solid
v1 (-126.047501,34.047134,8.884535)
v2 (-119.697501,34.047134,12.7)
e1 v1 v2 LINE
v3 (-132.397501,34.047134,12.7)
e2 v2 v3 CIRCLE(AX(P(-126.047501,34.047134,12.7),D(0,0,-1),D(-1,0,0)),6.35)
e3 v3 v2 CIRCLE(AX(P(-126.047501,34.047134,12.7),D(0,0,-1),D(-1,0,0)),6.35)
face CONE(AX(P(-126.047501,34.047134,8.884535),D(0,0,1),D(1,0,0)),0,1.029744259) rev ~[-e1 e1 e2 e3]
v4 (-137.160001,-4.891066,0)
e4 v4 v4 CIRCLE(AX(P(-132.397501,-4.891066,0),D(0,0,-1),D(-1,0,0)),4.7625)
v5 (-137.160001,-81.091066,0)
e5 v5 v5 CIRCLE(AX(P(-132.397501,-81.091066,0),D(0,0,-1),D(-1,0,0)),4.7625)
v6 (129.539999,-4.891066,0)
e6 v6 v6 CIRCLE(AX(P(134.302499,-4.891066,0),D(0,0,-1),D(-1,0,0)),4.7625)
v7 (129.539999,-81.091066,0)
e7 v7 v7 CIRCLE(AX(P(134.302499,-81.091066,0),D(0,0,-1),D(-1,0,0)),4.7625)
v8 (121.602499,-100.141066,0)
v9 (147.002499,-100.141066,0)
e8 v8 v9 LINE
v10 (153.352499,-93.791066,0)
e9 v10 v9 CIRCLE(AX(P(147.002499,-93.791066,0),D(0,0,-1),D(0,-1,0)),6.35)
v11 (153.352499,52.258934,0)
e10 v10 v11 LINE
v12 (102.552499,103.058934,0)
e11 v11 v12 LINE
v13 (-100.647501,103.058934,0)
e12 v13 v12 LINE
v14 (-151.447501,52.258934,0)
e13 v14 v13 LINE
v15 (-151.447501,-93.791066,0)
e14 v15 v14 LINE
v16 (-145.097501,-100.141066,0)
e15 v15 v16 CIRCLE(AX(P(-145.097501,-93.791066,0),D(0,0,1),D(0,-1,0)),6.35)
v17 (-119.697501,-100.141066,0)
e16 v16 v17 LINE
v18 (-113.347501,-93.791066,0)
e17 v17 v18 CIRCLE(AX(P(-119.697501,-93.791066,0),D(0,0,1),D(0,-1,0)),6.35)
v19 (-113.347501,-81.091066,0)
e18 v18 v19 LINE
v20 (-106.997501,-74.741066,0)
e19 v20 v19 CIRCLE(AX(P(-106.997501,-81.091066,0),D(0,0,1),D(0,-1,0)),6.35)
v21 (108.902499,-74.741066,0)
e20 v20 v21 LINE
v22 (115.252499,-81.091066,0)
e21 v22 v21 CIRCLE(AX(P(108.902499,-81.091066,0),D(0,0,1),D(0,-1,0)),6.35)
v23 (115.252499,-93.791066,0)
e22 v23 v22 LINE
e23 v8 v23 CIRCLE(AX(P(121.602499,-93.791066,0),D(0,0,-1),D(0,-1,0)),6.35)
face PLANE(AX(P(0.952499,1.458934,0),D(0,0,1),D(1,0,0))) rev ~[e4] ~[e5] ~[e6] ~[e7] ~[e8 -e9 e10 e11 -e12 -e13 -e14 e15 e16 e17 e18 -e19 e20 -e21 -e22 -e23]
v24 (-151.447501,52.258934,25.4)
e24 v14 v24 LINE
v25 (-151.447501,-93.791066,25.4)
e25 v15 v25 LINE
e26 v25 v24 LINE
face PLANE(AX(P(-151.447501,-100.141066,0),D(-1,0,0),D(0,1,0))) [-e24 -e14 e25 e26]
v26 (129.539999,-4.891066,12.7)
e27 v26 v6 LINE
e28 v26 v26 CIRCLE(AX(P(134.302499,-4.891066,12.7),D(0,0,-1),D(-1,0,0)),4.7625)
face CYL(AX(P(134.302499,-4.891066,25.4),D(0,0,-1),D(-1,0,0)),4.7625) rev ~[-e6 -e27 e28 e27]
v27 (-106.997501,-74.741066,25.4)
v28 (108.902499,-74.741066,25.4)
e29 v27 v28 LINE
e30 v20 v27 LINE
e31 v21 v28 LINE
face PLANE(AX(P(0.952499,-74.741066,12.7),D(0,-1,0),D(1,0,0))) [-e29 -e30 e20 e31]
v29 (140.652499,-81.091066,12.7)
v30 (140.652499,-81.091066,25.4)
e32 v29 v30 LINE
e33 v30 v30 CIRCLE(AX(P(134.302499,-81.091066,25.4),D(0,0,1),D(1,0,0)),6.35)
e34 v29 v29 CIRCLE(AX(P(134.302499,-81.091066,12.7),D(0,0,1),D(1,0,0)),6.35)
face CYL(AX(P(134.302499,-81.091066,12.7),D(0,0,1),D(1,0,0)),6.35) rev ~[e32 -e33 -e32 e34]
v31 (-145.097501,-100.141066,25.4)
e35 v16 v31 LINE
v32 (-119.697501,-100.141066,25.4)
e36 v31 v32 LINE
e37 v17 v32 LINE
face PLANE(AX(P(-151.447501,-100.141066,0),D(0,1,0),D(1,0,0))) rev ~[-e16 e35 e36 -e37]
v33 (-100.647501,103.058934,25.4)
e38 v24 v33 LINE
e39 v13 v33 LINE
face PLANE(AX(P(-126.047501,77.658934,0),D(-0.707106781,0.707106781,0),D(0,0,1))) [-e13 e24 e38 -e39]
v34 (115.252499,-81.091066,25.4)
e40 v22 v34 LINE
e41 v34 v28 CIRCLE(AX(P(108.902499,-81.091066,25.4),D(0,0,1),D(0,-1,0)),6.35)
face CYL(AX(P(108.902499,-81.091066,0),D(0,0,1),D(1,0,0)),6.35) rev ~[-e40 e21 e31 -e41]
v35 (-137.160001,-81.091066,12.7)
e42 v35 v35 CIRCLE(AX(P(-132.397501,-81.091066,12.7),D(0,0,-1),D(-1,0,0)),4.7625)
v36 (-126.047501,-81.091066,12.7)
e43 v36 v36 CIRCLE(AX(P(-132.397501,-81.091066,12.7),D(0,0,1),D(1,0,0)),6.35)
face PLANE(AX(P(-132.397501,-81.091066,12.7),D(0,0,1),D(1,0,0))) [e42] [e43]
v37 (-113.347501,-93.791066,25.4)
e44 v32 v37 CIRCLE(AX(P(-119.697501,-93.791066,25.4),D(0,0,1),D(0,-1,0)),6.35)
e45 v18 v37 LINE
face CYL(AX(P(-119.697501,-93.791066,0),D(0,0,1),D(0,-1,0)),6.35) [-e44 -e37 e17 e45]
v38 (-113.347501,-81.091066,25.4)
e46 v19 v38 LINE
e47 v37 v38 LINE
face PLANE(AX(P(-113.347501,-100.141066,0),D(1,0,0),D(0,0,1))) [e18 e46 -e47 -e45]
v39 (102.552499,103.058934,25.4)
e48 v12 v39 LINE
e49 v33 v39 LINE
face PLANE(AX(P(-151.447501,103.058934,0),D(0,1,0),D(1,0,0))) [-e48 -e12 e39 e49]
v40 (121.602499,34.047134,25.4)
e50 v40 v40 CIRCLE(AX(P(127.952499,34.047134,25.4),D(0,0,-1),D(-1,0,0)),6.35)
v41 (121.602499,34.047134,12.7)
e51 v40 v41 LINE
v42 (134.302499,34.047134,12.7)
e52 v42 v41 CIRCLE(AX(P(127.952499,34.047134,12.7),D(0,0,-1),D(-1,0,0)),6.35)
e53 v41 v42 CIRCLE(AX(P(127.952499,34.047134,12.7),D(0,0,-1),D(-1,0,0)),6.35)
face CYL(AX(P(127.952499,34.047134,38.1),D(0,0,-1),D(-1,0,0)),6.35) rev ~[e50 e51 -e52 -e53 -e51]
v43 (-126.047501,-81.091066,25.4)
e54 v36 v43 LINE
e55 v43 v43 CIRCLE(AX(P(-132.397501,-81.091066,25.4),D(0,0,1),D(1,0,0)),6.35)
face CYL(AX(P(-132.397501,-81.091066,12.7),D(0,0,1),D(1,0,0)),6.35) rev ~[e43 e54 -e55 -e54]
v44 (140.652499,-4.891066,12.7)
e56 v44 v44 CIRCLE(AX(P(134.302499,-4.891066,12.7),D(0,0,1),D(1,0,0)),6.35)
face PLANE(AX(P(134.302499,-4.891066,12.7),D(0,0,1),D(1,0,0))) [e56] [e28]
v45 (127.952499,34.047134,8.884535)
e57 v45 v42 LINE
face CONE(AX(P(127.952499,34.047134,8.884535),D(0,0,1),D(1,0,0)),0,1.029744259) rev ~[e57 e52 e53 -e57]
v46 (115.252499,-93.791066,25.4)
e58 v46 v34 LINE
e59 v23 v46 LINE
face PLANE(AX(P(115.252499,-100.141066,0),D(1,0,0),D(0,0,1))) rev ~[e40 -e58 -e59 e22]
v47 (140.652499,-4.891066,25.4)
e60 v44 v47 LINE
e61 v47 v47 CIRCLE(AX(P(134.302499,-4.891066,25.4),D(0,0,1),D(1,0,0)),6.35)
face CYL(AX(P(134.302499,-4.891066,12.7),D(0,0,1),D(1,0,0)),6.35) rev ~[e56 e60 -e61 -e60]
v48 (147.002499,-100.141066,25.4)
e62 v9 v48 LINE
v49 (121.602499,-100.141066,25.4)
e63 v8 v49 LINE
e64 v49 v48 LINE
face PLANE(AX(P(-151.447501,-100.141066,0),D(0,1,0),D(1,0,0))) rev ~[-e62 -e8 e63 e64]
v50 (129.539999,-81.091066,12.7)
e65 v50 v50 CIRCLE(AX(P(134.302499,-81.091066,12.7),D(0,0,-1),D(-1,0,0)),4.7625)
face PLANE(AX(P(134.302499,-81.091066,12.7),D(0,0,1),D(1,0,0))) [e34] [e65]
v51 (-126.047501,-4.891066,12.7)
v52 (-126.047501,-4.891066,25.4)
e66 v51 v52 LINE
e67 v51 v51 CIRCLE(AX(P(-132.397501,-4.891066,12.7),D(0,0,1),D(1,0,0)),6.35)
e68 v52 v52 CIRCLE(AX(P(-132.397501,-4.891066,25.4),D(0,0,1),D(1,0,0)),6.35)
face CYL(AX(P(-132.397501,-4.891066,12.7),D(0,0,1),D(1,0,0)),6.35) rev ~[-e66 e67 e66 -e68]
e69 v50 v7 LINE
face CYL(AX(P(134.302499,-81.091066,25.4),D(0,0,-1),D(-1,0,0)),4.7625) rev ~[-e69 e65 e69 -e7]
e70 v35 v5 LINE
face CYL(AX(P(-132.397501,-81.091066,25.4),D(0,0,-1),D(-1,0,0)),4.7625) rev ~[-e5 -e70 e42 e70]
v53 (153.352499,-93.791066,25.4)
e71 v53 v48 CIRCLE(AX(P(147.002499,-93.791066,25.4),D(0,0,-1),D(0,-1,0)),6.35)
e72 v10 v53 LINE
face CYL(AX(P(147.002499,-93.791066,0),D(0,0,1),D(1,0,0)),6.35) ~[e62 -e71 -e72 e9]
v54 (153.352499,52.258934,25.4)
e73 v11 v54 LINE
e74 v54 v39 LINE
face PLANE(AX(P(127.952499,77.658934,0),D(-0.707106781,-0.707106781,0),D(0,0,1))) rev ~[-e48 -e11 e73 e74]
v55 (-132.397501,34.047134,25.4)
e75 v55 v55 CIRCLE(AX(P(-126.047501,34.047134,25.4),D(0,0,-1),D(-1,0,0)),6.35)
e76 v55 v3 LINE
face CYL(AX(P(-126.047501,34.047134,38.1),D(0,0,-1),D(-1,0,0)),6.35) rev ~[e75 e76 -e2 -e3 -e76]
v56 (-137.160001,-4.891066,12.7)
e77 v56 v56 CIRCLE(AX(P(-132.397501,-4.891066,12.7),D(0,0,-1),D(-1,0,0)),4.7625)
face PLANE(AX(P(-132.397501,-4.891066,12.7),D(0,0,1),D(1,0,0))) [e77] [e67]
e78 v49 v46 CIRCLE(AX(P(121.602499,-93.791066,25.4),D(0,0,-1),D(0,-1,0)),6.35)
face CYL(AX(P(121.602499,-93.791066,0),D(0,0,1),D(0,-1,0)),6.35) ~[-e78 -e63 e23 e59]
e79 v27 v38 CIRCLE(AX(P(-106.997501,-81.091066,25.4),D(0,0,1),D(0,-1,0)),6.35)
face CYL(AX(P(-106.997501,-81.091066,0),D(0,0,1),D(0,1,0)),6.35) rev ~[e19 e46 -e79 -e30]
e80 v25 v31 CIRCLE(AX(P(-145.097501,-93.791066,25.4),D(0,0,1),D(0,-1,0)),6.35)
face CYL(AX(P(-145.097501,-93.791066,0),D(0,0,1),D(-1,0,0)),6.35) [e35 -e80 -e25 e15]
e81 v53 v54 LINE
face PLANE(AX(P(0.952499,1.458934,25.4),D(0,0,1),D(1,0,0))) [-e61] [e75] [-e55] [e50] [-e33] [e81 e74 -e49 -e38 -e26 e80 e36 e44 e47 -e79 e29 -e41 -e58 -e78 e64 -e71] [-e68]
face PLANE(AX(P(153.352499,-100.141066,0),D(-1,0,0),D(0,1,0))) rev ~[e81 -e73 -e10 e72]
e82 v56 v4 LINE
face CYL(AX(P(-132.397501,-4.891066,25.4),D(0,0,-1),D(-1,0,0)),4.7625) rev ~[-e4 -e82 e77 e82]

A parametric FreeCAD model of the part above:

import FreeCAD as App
import Part
import Sketcher
from FreeCAD import Vector
Q = App.Units.Quantity


def edges_at(feature, points):
    """Names of the edges that pass closest to the given points."""
    edges = feature.Shape.Edges
    near = lambda p: min(range(len(edges)), key=lambda i: edges[i].distToShape(Part.Vertex(*p))[0])
    return sorted({f"Edge{near(p) + 1}" for p in points})

doc = App.newDocument("Part")
body = doc.addObject("PartDesign::Body", "Body")

# Sketch on XY plane
sketch1 = body.newObject("Sketcher::SketchObject", "Sketch")
sketch1.AttachmentSupport = (doc.getObject("XY_Plane"), [""])
sketch1.MapMode = "FlatFace"
sketch1.addGeometry([
    Part.LineSegment(Vector(-151, 103, 0), Vector(-151, -100, 0)),
    Part.LineSegment(Vector(-151, -100, 0), Vector(153, -100, 0)),
    Part.LineSegment(Vector(153, -100, 0), Vector(153, 103, 0)),
    Part.LineSegment(Vector(153, 103, 0), Vector(-151, 103, 0)),
], False)
sketch1.addConstraint([
    Sketcher.Constraint("Coincident", 0, 2, 1, 1),
    Sketcher.Constraint("Coincident", 1, 2, 2, 1),
    Sketcher.Constraint("Coincident", 2, 2, 3, 1),
    Sketcher.Constraint("Coincident", 3, 2, 0, 1),
    Sketcher.Constraint("Vertical", 0),
    Sketcher.Constraint("Horizontal", 1),
    Sketcher.Constraint("Vertical", 2),
    Sketcher.Constraint("Horizontal", 3),
    Sketcher.Constraint("DistanceX", 1, 1, 1, 2, Q("12 in")),
    Sketcher.Constraint("DistanceY", 0, 2, 0, 1, Q("8 in")),
    Sketcher.Constraint("DistanceX", 0, 2, -1, 1, Q("5.9625 in")),
    Sketcher.Constraint("DistanceY", 0, 2, -1, 1, Q("100.141066 mm")),
])
pad1 = body.newObject("PartDesign::Pad", "Pad")
pad1.Profile = sketch1
pad1.Length = Q("1 in")
doc.recompute()

chamfer = body.newObject("PartDesign::Chamfer", "Chamfer")
chamfer.Base = (pad1, edges_at(pad1, [(-151.448, 103.059, 12.7), (153.352, 103.059, 12.7)]))
chamfer.Size = Q("2 in")

# Sketch on XZ plane
sketch2 = body.newObject("Sketcher::SketchObject", "Sketch001")
sketch2.AttachmentSupport = (doc.getObject("XZ_Plane"), [""])
sketch2.MapMode = "FlatFace"
sketch2.AttachmentOffset = App.Placement(Vector(0, 0, 100.141066), App.Rotation())
sketch2.addGeometry([
    Part.LineSegment(Vector(-113, 25, 0), Vector(-113, 0, 0)),
    Part.LineSegment(Vector(-113, 0, 0), Vector(115, 0, 0)),
    Part.LineSegment(Vector(115, 0, 0), Vector(115, 25, 0)),
    Part.LineSegment(Vector(115, 25, 0), Vector(-113, 25, 0)),
], False)
sketch2.addConstraint([
    Sketcher.Constraint("Coincident", 0, 2, 1, 1),
    Sketcher.Constraint("Coincident", 1, 2, 2, 1),
    Sketcher.Constraint("Coincident", 2, 2, 3, 1),
    Sketcher.Constraint("Coincident", 3, 2, 0, 1),
    Sketcher.Constraint("Vertical", 0),
    Sketcher.Constraint("Horizontal", 1),
    Sketcher.Constraint("Vertical", 2),
    Sketcher.Constraint("Horizontal", 3),
    Sketcher.Constraint("PointOnObject", 0, 2, -1),
    Sketcher.Constraint("DistanceX", 1, 1, 1, 2, Q("9 in")),
    Sketcher.Constraint("DistanceY", 0, 2, 0, 1, Q("1 in")),
    Sketcher.Constraint("DistanceX", 0, 2, -1, 1, Q("4.4625 in")),
])
pocket1 = body.newObject("PartDesign::Pocket", "Pocket")
pocket1.Profile = sketch2
pocket1.Length = Q("1 in")
doc.recompute()

fillet = body.newObject("PartDesign::Fillet", "Fillet")
fillet.Base = (pocket1, edges_at(pocket1, [
    (-113.348, -100.141, 12.7),
    (-113.348, -74.741, 12.7),
    (115.252, -74.741, 12.7),
    (115.252, -100.141, 12.7),
    (153.352, -100.141, 12.7),
    (-151.448, -100.141, 12.7),
]))
fillet.Radius = Q("0.25 in")

# Sketch on XY plane
sketch3 = body.newObject("Sketcher::SketchObject", "Sketch002")
sketch3.AttachmentSupport = (doc.getObject("XY_Plane"), [""])
sketch3.MapMode = "FlatFace"
sketch3.AttachmentOffset = App.Placement(Vector(0, 0, 1 * 25.4), App.Rotation())
sketch3.addGeometry([
    Part.Circle(Vector(-132.4, -81.1, 0), Vector(0, 0, 1), 4.8),
    Part.Circle(Vector(-132.4, -4.9, 0), Vector(0, 0, 1), 4.8),
    Part.Circle(Vector(134.3, -4.9, 0), Vector(0, 0, 1), 4.8),
    Part.Circle(Vector(134.3, -81.1, 0), Vector(0, 0, 1), 4.8),
], False)
sketch3.addConstraint([
    Sketcher.Constraint("Equal", 0, 1),
    Sketcher.Constraint("Equal", 1, 2),
    Sketcher.Constraint("Equal", 2, 3),
    Sketcher.Constraint("Horizontal", 1, 3, 2, 3),
    Sketcher.Constraint("Horizontal", 0, 3, 3, 3),
    Sketcher.Constraint("Vertical", 0, 3, 1, 3),
    Sketcher.Constraint("Vertical", 2, 3, 3, 3),
    Sketcher.Constraint("Diameter", 0, Q("0.375 in")),
    Sketcher.Constraint("DistanceY", 0, 3, 1, 3, Q("3 in")),
    Sketcher.Constraint("DistanceX", 1, 3, 2, 3, Q("10.5 in")),
    Sketcher.Constraint("DistanceX", 0, 3, -1, 1, Q("5.2125 in")),
    Sketcher.Constraint("DistanceY", 0, 3, -1, 1, Q("81.091066 mm")),
])
doc.recompute()
hole = body.newObject("PartDesign::Hole", "Hole")
hole.Profile = sketch3
hole.ThreadType = "None"
hole.Diameter = Q("0.375 in")
hole.DepthType = "ThroughAll"
hole.HoleCutType = "Counterbore"
hole.HoleCutDiameter = Q("0.5 in")
hole.HoleCutDepth = Q("0.5 in")

# Sketch on XY plane
sketch4 = body.newObject("Sketcher::SketchObject", "Sketch003")
sketch4.AttachmentSupport = (doc.getObject("XY_Plane"), [""])
sketch4.MapMode = "FlatFace"
sketch4.AttachmentOffset = App.Placement(Vector(0, 0, 1 * 25.4), App.Rotation())
sketch4.addGeometry([
    Part.Circle(Vector(-126, 34, 0), Vector(0, 0, 1), 6),
    Part.Circle(Vector(128, 34, 0), Vector(0, 0, 1), 6),
], False)
sketch4.addConstraint([
    Sketcher.Constraint("Equal", 0, 1),
    Sketcher.Constraint("Horizontal", 0, 3, 1, 3),
    Sketcher.Constraint("Diameter", 0, Q("0.5 in")),
    Sketcher.Constraint("DistanceX", 0, 3, 1, 3, Q("10 in")),
    Sketcher.Constraint("DistanceX", 0, 3, -1, 1, Q("4.9625 in")),
    Sketcher.Constraint("DistanceY", -1, 1, 0, 3, Q("34.047134 mm")),
])
doc.recompute()
hole2 = body.newObject("PartDesign::Hole", "Hole001")
hole2.Profile = sketch4
hole2.ThreadType = "None"
hole2.Diameter = Q("0.5 in")
hole2.DepthType = "Dimension"
hole2.Depth = Q("0.5 in")
hole2.DrillPoint = "Angled"
hole2.DrillPointAngle = 118

doc.recompute()
